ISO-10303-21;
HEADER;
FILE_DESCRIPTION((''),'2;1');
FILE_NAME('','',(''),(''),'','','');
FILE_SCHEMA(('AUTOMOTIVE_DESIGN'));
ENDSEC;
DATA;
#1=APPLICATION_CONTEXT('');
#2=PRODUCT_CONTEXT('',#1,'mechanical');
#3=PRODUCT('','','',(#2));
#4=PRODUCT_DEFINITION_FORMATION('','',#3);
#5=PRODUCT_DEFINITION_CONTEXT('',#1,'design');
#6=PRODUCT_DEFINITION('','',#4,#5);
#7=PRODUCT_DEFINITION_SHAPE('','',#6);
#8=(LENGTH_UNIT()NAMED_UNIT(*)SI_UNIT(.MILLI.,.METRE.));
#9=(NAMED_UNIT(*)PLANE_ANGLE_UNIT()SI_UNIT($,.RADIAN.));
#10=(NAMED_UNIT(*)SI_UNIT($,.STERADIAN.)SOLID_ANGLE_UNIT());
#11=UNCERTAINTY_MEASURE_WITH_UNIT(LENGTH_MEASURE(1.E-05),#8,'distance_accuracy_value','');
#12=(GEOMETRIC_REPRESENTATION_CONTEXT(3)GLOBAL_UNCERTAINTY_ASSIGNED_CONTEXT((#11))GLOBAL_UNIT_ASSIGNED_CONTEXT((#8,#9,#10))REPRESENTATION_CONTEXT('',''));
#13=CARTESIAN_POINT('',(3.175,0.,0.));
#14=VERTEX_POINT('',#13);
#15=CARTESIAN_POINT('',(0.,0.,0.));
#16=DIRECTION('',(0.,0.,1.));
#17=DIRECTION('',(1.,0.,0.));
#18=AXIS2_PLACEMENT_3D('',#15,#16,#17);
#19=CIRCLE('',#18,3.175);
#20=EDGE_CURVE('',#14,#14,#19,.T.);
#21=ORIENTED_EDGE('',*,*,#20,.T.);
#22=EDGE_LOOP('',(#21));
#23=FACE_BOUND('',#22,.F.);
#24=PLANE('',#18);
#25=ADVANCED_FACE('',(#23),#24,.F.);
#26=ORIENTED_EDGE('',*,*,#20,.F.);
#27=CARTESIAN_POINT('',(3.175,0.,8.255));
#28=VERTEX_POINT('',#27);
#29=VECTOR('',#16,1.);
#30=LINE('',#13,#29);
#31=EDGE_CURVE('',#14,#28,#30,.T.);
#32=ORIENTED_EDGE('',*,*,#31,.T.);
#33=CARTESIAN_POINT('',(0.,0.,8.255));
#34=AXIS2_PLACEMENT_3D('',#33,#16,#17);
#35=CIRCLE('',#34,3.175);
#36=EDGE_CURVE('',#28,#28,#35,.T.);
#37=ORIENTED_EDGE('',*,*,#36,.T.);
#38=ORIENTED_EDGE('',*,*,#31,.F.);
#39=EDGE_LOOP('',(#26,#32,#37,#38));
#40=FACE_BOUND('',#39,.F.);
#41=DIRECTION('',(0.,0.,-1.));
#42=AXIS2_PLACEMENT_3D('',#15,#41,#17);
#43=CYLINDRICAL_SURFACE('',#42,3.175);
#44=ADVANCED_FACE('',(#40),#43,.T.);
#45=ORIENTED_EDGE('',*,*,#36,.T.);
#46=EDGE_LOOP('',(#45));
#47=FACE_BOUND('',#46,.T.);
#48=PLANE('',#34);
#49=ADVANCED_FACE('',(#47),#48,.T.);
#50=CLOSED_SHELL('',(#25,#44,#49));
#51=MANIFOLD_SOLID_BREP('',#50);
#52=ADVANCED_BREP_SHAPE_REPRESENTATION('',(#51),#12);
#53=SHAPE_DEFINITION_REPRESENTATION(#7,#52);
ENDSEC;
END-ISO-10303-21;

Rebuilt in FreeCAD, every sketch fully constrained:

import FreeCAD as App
import Part
import Sketcher
from FreeCAD import Vector
Q = App.Units.Quantity

doc = App.newDocument("Part")
body = doc.addObject("PartDesign::Body", "Body")

sketch1 = body.newObject("Sketcher::SketchObject", "Sketch")
sketch1.AttachmentSupport = (doc.getObject("XY_Plane"), [""])
sketch1.MapMode = "FlatFace"
sketch1.addGeometry(Part.Circle(Vector(0, 0, 0), Vector(0, 0, 1), 3.175), False)
sketch1.addConstraint([
    Sketcher.Constraint("Coincident", 0, 3, -1, 1),
    Sketcher.Constraint("Diameter", 0, Q("0.25 in")),
])
pad1 = body.newObject("PartDesign::Pad", "Pad")
pad1.Profile = sketch1
pad1.Length = Q("0.325 in")

doc.recompute()
